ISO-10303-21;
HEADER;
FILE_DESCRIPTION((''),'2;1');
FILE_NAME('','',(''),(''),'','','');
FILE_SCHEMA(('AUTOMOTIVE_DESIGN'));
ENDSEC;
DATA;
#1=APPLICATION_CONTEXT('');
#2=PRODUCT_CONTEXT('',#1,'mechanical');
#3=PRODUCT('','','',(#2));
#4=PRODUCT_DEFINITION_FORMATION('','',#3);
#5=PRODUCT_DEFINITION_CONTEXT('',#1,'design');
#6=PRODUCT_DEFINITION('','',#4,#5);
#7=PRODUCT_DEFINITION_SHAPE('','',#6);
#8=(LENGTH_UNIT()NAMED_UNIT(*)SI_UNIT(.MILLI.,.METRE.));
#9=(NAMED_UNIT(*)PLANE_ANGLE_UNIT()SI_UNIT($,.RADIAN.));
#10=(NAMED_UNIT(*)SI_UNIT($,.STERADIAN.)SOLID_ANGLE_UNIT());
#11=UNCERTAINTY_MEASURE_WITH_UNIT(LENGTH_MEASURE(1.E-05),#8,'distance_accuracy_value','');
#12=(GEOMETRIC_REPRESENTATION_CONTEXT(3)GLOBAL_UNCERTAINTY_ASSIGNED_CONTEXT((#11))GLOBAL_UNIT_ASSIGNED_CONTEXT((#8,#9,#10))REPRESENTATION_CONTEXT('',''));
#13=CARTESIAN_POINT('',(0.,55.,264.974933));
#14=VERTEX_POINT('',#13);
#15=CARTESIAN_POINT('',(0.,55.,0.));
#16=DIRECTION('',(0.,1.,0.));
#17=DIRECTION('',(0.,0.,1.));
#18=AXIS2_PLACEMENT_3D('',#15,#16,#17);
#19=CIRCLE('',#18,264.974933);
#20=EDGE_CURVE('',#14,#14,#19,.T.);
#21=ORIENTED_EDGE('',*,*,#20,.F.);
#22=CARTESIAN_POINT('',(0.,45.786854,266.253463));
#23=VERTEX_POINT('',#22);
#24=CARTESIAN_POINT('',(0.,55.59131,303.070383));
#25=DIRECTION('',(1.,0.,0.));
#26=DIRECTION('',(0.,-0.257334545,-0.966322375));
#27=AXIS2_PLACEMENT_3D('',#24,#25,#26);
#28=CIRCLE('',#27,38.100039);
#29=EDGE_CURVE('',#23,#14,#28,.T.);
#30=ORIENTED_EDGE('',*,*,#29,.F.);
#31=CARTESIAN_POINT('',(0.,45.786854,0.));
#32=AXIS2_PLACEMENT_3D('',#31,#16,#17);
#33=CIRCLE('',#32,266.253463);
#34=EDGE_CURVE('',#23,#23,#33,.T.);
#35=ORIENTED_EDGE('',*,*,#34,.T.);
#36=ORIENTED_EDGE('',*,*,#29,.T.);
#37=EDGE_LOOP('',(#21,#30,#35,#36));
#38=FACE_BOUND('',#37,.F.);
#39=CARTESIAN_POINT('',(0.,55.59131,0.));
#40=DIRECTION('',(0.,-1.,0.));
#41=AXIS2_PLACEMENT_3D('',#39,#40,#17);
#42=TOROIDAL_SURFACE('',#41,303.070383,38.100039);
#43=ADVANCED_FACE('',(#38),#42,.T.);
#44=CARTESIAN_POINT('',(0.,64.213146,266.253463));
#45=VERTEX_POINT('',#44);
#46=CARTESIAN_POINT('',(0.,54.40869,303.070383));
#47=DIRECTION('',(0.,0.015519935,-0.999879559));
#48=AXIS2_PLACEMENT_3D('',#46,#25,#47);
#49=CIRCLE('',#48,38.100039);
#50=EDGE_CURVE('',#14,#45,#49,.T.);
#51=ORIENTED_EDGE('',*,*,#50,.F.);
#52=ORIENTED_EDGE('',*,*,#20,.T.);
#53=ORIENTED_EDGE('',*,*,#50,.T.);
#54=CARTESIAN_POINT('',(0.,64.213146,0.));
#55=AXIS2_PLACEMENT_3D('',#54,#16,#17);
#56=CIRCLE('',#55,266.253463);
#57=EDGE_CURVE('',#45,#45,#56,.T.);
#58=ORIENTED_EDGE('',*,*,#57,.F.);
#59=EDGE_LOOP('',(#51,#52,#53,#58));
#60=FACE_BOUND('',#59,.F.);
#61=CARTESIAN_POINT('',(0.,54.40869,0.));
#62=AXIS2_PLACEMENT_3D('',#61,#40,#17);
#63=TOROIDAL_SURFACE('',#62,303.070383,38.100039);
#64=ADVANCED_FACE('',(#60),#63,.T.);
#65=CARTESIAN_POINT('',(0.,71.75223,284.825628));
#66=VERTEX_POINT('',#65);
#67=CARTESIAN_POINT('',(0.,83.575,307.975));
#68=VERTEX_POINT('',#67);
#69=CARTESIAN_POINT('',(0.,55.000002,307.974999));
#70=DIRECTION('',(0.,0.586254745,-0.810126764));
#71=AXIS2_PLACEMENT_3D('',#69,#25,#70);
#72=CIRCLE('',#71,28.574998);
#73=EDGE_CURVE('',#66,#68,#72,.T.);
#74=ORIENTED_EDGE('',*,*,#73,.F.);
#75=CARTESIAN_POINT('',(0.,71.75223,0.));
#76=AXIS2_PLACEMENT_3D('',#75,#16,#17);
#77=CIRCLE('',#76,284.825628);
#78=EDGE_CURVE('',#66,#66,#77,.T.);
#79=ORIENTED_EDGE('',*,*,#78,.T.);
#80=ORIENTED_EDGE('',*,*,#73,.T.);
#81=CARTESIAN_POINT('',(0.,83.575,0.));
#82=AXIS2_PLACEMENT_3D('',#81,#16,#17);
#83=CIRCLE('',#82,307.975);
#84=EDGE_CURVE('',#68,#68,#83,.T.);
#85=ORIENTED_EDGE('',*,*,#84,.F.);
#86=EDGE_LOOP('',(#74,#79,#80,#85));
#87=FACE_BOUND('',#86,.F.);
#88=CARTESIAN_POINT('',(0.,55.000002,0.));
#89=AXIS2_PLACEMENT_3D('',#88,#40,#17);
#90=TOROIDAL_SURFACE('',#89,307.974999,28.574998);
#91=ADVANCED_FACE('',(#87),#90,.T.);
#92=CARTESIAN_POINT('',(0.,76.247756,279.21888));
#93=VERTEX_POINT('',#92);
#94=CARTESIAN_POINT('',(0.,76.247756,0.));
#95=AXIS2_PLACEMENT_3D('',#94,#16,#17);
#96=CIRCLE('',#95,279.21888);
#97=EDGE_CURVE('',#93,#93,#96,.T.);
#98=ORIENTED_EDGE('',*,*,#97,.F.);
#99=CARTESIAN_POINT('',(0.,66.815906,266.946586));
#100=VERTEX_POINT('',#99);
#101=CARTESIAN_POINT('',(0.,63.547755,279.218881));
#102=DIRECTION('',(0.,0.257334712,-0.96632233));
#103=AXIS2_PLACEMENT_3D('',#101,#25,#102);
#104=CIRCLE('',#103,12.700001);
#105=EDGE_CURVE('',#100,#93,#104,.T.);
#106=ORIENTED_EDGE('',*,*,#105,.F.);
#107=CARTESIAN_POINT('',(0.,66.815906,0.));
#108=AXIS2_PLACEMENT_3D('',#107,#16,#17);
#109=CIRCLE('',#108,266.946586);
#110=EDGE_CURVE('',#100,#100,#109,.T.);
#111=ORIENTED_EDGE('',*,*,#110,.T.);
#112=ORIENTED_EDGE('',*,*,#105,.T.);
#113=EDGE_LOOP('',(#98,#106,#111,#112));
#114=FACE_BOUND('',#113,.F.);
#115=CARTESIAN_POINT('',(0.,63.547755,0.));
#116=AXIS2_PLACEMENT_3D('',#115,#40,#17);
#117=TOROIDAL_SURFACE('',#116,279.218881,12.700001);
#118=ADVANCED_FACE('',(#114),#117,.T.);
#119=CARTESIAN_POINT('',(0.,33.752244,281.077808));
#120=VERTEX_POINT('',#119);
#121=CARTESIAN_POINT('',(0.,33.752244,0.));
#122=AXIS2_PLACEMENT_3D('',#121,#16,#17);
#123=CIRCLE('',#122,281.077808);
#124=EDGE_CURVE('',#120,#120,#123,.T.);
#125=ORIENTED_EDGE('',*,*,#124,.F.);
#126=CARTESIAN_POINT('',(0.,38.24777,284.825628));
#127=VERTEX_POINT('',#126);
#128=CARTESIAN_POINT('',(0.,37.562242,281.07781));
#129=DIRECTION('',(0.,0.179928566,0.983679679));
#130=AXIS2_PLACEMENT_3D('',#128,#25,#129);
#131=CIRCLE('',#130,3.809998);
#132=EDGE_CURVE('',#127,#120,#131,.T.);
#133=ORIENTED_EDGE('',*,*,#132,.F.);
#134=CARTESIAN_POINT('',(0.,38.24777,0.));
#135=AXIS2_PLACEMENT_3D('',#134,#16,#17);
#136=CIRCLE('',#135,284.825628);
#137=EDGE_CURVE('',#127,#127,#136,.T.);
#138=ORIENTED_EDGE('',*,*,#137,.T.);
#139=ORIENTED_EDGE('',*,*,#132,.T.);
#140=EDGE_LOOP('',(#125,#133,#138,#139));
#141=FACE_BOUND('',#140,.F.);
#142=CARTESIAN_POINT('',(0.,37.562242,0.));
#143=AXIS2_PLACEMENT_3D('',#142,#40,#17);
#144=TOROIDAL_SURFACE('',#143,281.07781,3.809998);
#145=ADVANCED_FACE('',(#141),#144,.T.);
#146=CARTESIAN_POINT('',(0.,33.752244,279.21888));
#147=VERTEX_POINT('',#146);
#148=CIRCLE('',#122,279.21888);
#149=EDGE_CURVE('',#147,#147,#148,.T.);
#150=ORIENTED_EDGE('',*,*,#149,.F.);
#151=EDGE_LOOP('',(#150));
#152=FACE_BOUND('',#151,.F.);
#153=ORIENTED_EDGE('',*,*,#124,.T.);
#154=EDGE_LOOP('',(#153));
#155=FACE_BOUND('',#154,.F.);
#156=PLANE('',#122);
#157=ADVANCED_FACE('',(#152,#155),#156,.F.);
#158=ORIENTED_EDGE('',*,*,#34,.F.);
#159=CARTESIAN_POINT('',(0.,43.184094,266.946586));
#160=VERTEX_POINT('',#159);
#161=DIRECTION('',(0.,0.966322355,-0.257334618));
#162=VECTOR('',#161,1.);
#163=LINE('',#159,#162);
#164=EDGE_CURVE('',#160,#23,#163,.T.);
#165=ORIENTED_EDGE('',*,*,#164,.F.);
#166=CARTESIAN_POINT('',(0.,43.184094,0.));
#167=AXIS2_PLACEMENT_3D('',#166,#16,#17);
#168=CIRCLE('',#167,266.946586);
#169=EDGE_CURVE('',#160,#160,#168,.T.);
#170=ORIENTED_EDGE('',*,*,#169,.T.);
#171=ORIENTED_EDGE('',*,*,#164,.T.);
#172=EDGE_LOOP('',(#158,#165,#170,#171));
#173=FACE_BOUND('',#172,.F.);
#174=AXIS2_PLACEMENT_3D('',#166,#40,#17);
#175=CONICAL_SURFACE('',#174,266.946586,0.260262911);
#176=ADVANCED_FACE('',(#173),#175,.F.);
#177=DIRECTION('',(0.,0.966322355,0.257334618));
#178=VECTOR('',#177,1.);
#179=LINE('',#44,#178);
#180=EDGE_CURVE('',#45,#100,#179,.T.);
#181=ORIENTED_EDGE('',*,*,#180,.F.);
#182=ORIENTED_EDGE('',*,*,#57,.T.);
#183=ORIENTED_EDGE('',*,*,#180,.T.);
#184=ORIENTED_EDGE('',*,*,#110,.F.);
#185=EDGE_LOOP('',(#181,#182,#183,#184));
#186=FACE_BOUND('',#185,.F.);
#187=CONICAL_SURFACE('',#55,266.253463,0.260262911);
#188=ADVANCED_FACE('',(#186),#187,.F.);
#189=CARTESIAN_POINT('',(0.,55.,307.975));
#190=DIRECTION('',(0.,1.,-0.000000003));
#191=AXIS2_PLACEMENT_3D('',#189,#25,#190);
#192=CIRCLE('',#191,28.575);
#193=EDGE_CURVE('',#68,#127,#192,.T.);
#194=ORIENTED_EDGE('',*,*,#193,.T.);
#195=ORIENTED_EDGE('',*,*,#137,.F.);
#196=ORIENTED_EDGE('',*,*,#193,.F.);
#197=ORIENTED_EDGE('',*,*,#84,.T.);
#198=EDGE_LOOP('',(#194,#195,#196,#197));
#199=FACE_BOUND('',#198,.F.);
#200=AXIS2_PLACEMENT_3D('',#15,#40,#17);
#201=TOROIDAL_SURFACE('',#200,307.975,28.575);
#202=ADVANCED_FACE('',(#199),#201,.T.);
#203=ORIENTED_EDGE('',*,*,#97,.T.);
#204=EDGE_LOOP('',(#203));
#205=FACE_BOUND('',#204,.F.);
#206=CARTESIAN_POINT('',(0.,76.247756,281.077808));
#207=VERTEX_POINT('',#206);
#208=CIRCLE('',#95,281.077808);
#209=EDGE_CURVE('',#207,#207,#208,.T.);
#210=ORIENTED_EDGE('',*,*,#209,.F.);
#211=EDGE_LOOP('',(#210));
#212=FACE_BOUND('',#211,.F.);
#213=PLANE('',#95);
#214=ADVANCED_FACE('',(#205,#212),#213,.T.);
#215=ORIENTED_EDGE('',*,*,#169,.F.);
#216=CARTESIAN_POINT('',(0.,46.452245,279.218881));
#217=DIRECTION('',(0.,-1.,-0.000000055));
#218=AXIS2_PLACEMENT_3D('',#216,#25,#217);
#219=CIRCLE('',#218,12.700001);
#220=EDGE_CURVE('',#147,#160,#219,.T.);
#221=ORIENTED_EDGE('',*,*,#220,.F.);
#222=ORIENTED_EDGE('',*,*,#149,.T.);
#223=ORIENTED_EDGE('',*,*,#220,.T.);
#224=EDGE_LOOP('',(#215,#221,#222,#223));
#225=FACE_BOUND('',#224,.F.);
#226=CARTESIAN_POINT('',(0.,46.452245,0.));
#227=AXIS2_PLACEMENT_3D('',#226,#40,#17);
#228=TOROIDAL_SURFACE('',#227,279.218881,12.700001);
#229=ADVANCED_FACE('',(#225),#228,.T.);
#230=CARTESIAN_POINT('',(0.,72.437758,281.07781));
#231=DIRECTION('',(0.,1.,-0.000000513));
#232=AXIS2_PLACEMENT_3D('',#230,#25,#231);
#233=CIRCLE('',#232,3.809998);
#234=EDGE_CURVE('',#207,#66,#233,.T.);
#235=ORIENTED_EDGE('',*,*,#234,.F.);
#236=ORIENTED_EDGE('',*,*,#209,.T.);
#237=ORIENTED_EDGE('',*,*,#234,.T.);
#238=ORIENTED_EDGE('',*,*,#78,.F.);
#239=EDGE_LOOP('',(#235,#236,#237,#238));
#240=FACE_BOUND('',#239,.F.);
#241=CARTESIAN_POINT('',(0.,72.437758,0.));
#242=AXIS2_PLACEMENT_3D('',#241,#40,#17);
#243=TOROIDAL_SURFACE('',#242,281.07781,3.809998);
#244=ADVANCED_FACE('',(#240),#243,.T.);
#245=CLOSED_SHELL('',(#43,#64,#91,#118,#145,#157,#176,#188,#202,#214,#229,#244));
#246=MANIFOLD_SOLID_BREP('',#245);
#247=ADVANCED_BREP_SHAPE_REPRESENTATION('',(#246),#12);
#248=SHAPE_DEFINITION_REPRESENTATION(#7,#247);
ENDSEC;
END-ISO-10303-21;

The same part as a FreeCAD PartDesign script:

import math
import FreeCAD as App
import Part
import Sketcher
Q = App.Units.Quantity

doc = App.newDocument("Part")
params = doc.addObject("Spreadsheet::Sheet", "Params")
for row, (alias, value) in enumerate([
    ("sketch1_radius", "0.5 in"),
    ("sketch1_radius2", "0.1499999 in"),
    ("sketch1_radius3", "1.1249999 in"),
    ("revolution_angle", "360 deg"),
], start=1):
    params.set(f"A{row}", alias)
    params.set(f"B{row}", "=" + value)
    params.setAlias(f"B{row}", alias)

body = doc.addObject("PartDesign::Body", "Body")

# Sketch on YZ plane
sketch1 = body.newObject("Sketcher::SketchObject", "Sketch")
sketch1.AttachmentSupport = (doc.getObject("YZ_Plane"), [""])
sketch1.MapMode = "FlatFace"
sketch1.addGeometry(Part.LineSegment(App.Vector(43.2, 266.9, 0), App.Vector(45.8, 266.3, 0)), False)
sketch1.addGeometry(Part.ArcOfCircle(Part.Circle(App.Vector(55.6, 303.1, 0), App.Vector(0, 0, 1), 38.1), math.radians(-104.91), math.radians(-90.89)), False)
sketch1.addGeometry(Part.ArcOfCircle(Part.Circle(App.Vector(54.4, 303.1, 0), App.Vector(0, 0, 1), 38.1), math.radians(-89.11), math.radians(-75.09)), False)
sketch1.addGeometry(Part.LineSegment(App.Vector(64.2, 266.3, 0), App.Vector(66.8, 266.9, 0)), False)
sketch1.addGeometry(Part.ArcOfCircle(Part.Circle(App.Vector(63.5, 279.2, 0), App.Vector(0, 0, 1), 12.7), math.radians(-75), math.radians(0)), False)
sketch1.addGeometry(Part.LineSegment(App.Vector(76.2, 279.2, 0), App.Vector(76.2, 281.1, 0)), False)
sketch1.addGeometry(Part.ArcOfCircle(Part.Circle(App.Vector(72.4, 281.1, 0), App.Vector(0, 0, 1), 3.8), math.radians(0), math.radians(100)), False)
sketch1.addGeometry(Part.ArcOfCircle(Part.Circle(App.Vector(55, 308, 0), App.Vector(0, 0, 1), 28.6), math.radians(-54), math.radians(0)), False)
sketch1.addGeometry(Part.ArcOfCircle(Part.Circle(App.Vector(55, 308, 0), App.Vector(0, 0, 1), 28.6), math.radians(0), math.radians(234)), False)
sketch1.addGeometry(Part.ArcOfCircle(Part.Circle(App.Vector(37.6, 281.1, 0), App.Vector(0, 0, 1), 3.8), math.radians(80), math.radians(180)), False)
sketch1.addGeometry(Part.LineSegment(App.Vector(33.8, 281.1, 0), App.Vector(33.8, 279.2, 0)), False)
sketch1.addGeometry(Part.ArcOfCircle(Part.Circle(App.Vector(46.5, 279.2, 0), App.Vector(0, 0, 1), 12.7), math.radians(-180), math.radians(-105)), False)
sketch1.addConstraint(Sketcher.Constraint("Tangent", 0, 2, 1, 1))
sketch1.addConstraint(Sketcher.Constraint("Coincident", 1, 2, 2, 1))
sketch1.addConstraint(Sketcher.Constraint("Tangent", 2, 2, 3, 1))
sketch1.addConstraint(Sketcher.Constraint("Tangent", 3, 2, 4, 1))
sketch1.addConstraint(Sketcher.Constraint("Tangent", 4, 2, 5, 1))
sketch1.addConstraint(Sketcher.Constraint("Tangent", 5, 2, 6, 1))
sketch1.addConstraint(Sketcher.Constraint("Coincident", 6, 2, 7, 1))
sketch1.addConstraint(Sketcher.Constraint("Tangent", 7, 2, 8, 1))
sketch1.addConstraint(Sketcher.Constraint("Coincident", 8, 2, 9, 1))
sketch1.addConstraint(Sketcher.Constraint("Tangent", 9, 2, 10, 1))
sketch1.addConstraint(Sketcher.Constraint("Tangent", 10, 2, 11, 1))
sketch1.addConstraint(Sketcher.Constraint("Tangent", 11, 2, 0, 1))
sketch1.addConstraint(Sketcher.Constraint("Vertical", 5))
sketch1.addConstraint(Sketcher.Constraint("Vertical", 10))
sketch1.addConstraint(Sketcher.Constraint("Equal", 1, 2))
sketch1.addConstraint(Sketcher.Constraint("Equal", 7, 8))
sketch1.addConstraint(Sketcher.Constraint("Equal", 6, 9))
sketch1.addConstraint(Sketcher.Constraint("Equal", 4, 11))
sketch1.addConstraint(Sketcher.Constraint("Horizontal", 1, 3, 2, 3))
sketch1.addConstraint(Sketcher.Constraint("Horizontal", 6, 3, 9, 3))
sketch1.addConstraint(Sketcher.Constraint("Horizontal", 4, 3, 11, 3))
sketch1.addConstraint(Sketcher.Constraint("Horizontal", 0, 2, 2, 2))
sketch1.addConstraint(Sketcher.Constraint("Horizontal", 8, 3, 7, 2))
sketch1.addConstraint(Sketcher.Constraint("Horizontal", 6, 2, 8, 2))
sketch1.addConstraint(Sketcher.Constraint("Radius", 4, Q("0.5 in")))
sketch1.addConstraint(Sketcher.Constraint("Radius", 6, Q("0.1499999 in")))
sketch1.addConstraint(Sketcher.Constraint("Radius", 7, Q("1.1249999 in")))
sketch1.addConstraint(Sketcher.Constraint("DistanceY", -1, 1, 7, 3, Q("12.125 in")))
sketch1.addConstraint(Sketcher.Constraint("Radius", 1, 38.100039))
sketch1.addConstraint(Sketcher.Constraint("DistanceX", -1, 1, 7, 3, 55.000002))
sketch1.addConstraint(Sketcher.Constraint("DistanceX", 0, 2, 4, 3, 17.760901))
sketch1.addConstraint(Sketcher.Constraint("Distance", 0, 2.69347))
sketch1.addConstraint(Sketcher.Constraint("DistanceY", 5, 1, 5, 2, 1.858928))
sketch1.addConstraint(Sketcher.Constraint("DistanceX", -1, 1, 1, 3, 55.59131))
sketch1.addConstraint(Sketcher.Constraint("DistanceY", -1, 1, 4, 3, 279.218881))
sketch1.setExpression("Constraints[24]", "Params.sketch1_radius")
sketch1.setExpression("Constraints[25]", "Params.sketch1_radius2")
sketch1.setExpression("Constraints[26]", "Params.sketch1_radius3")
revolution = body.newObject("PartDesign::Revolution", "Revolution")
revolution.Profile = sketch1
revolution.ReferenceAxis = (sketch1, ["H_Axis"])
revolution.setExpression("Angle", "Params.revolution_angle")

doc.recompute()
